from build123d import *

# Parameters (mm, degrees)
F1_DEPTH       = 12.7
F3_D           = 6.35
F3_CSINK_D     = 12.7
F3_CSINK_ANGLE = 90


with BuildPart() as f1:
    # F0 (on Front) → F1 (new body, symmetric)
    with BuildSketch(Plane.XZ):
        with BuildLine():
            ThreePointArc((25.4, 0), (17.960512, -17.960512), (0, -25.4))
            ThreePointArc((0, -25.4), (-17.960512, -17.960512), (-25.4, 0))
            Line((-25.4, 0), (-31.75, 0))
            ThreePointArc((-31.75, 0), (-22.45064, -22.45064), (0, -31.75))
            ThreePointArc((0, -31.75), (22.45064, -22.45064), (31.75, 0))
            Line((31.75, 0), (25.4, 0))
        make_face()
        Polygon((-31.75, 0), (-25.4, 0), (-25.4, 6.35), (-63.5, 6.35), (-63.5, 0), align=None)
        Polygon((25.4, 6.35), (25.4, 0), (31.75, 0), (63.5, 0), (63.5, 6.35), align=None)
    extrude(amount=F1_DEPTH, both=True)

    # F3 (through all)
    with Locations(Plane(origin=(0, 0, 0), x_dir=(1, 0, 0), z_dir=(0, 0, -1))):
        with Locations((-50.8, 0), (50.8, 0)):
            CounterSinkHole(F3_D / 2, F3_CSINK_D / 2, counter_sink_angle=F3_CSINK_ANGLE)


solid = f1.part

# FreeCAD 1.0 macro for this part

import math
import FreeCAD as App
import Part
import Sketcher
from FreeCAD import Vector
Q = App.Units.Quantity

doc = App.newDocument("Part")
body = doc.addObject("PartDesign::Body", "Body")

sketch1 = doc.addObject("Sketcher::SketchObject", "Sketch")
body.addObject(sketch1)
sketch1.AttachmentSupport = (doc.XZ_Plane, [""])
sketch1.MapMode = "FlatFace"
sketch1.addGeometry([
    Part.ArcOfCircle(Part.Circle(Vector(0, 0, 0), Vector(0, 0, 1), 25), math.radians(-90), math.radians(0)),
    Part.ArcOfCircle(Part.Circle(Vector(0, 0, 0), Vector(0, 0, 1), 25), math.radians(-180), math.radians(-90)),
    Part.LineSegment(Vector(-25, 0, 0), Vector(-25, 6, 0)),
    Part.LineSegment(Vector(-25, 6, 0), Vector(-64, 6, 0)),
    Part.LineSegment(Vector(-64, 6, 0), Vector(-64, 0, 0)),
    Part.LineSegment(Vector(-64, 0, 0), Vector(-32, 0, 0)),
    Part.ArcOfCircle(Part.Circle(Vector(0, 0, 0), Vector(0, 0, 1), 32), math.radians(-180), math.radians(-90)),
    Part.ArcOfCircle(Part.Circle(Vector(0, 0, 0), Vector(0, 0, 1), 32), math.radians(-90), math.radians(0)),
    Part.LineSegment(Vector(32, 0, 0), Vector(64, 0, 0)),
    Part.LineSegment(Vector(64, 0, 0), Vector(64, 6, 0)),
    Part.LineSegment(Vector(64, 6, 0), Vector(25, 6, 0)),
    Part.LineSegment(Vector(25, 6, 0), Vector(25, 0, 0)),
], False)
sketch1.addConstraint([
    Sketcher.Constraint("Tangent", 0, 1, 1, 2),
    Sketcher.Constraint("Tangent", 1, 1, 2, 1),
    Sketcher.Constraint("Coincident", 2, 2, 3, 1),
    Sketcher.Constraint("Coincident", 3, 2, 4, 1),
    Sketcher.Constraint("Coincident", 4, 2, 5, 1),
    Sketcher.Constraint("Coincident", 5, 2, 6, 1),
    Sketcher.Constraint("Tangent", 6, 2, 7, 1),
    Sketcher.Constraint("Coincident", 7, 2, 8, 1),
    Sketcher.Constraint("Coincident", 8, 2, 9, 1),
    Sketcher.Constraint("Coincident", 9, 2, 10, 1),
    Sketcher.Constraint("Coincident", 10, 2, 11, 1),
    Sketcher.Constraint("Tangent", 11, 2, 0, 2),
    Sketcher.Constraint("Vertical", 2),
    Sketcher.Constraint("Horizontal", 3),
    Sketcher.Constraint("Vertical", 4),
    Sketcher.Constraint("Horizontal", 5),
    Sketcher.Constraint("Horizontal", 8),
    Sketcher.Constraint("Vertical", 9),
    Sketcher.Constraint("Horizontal", 10),
    Sketcher.Constraint("Vertical", 11),
    Sketcher.Constraint("Coincident", 0, 3, -1, 1),
    Sketcher.Constraint("Coincident", 6, 3, -1, 1),
    Sketcher.Constraint("Equal", 0, 1),
    Sketcher.Constraint("Equal", 6, 7),
    Sketcher.Constraint("Symmetric", 4, 2, 8, 2, -1, 1),
    Sketcher.Constraint("PointOnObject", 0, 1, -2),
    Sketcher.Constraint("PointOnObject", 4, 2, -1),
    Sketcher.Constraint("PointOnObject", 6, 2, -2),
    Sketcher.Constraint("Horizontal", 3, 2, 9, 2),
    Sketcher.Constraint("Radius", 0, Q("1 in")),
    Sketcher.Constraint("Radius", 6, Q("1.25 in")),
    Sketcher.Constraint("DistanceX", 3, 2, 3, 1, Q("1.5 in")),
    Sketcher.Constraint("DistanceY", 2, 1, 2, 2, Q("0.25 in")),
])
pad1 = doc.addObject("PartDesign::Pad", "Pad")
body.addObject(pad1)
pad1.Profile = sketch1
pad1.Length = Q("1 in")
pad1.Midplane = True

sketch2 = doc.addObject("Sketcher::SketchObject", "Sketch001")
body.addObject(sketch2)
sketch2.AttachmentSupport = (doc.XY_Plane, [""])
sketch2.MapMode = "FlatFace"
sketch2.addGeometry([
    Part.Circle(Vector(-50.8, 0, 0), Vector(0, 0, 1), 3.2),
    Part.Circle(Vector(50.8, 0, 0), Vector(0, 0, 1), 3.2),
], False)
sketch2.addConstraint([
    Sketcher.Constraint("Equal", 0, 1),
    Sketcher.Constraint("Symmetric", 0, 3, 1, 3, -1, 1),
    Sketcher.Constraint("PointOnObject", 0, 3, -1),
    Sketcher.Constraint("Diameter", 0, Q("0.25 in")),
    Sketcher.Constraint("DistanceX", 0, 3, -1, 1, Q("2 in")),
])
doc.recompute()
hole = doc.addObject("PartDesign::Hole", "Hole")
body.addObject(hole)
hole.Profile = sketch2
hole.ThreadType = "None"
hole.Diameter = Q("0.25 in")
hole.DepthType = "ThroughAll"
hole.HoleCutType = "Countersink"
hole.HoleCutDiameter = Q("0.5 in")
hole.HoleCutCountersinkAngle = 90
hole.Reversed = True

doc.recompute()
